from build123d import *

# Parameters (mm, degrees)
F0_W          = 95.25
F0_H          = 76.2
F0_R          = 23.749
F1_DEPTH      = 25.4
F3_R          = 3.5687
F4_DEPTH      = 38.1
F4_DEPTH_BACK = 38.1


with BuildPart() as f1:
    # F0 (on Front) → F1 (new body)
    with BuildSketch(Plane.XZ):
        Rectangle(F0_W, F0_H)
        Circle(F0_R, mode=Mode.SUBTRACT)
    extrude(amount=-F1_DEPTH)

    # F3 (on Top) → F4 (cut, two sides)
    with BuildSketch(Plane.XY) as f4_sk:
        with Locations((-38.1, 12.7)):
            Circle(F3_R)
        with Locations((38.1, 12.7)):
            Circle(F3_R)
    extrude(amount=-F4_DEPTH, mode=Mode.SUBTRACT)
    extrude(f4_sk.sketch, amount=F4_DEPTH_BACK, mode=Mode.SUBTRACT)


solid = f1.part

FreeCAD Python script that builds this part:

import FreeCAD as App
import Part
import Sketcher
Q = App.Units.Quantity

doc = App.newDocument("Part")
params = doc.addObject("Spreadsheet::Sheet", "Params")
for row, (alias, value) in enumerate([
    ("sketch1_diameter", "1.87 in"),
    ("sketch1_height", "3 in"),
    ("sketch1_width", "3.75 in"),
    ("pad1_length", "1 in"),
    ("sketch2_diameter", "0.281 in"),
], start=1):
    params.set(f"A{row}", alias)
    params.set(f"B{row}", "=" + value)
    params.setAlias(f"B{row}", alias)

body = doc.addObject("PartDesign::Body", "Body")

sketch1 = body.newObject("Sketcher::SketchObject", "Sketch")
sketch1.AttachmentSupport = (doc.getObject("XZ_Plane"), [""])
sketch1.MapMode = "FlatFace"
sketch1.addGeometry([
    Part.LineSegment(App.Vector(-48, 38, 0), App.Vector(-48, -38, 0)),
    Part.LineSegment(App.Vector(-48, -38, 0), App.Vector(48, -38, 0)),
    Part.LineSegment(App.Vector(48, -38, 0), App.Vector(48, 38, 0)),
    Part.LineSegment(App.Vector(48, 38, 0), App.Vector(-48, 38, 0)),
    Part.Circle(App.Vector(0, 0, 0), App.Vector(0, 0, 1), 24),
], False)
sketch1.addConstraint([
    Sketcher.Constraint("Coincident", 0, 2, 1, 1),
    Sketcher.Constraint("Coincident", 1, 2, 2, 1),
    Sketcher.Constraint("Coincident", 2, 2, 3, 1),
    Sketcher.Constraint("Coincident", 3, 2, 0, 1),
    Sketcher.Constraint("Vertical", 0),
    Sketcher.Constraint("Horizontal", 1),
    Sketcher.Constraint("Vertical", 2),
    Sketcher.Constraint("Horizontal", 3),
    Sketcher.Constraint("Coincident", 4, 3, -1, 1),
    Sketcher.Constraint("Symmetric", 0, 2, 2, 2, -1, 1),
    Sketcher.Constraint("Diameter", 4, Q("1.87 in")),
    Sketcher.Constraint("DistanceY", 0, 2, 0, 1, Q("3 in")),
    Sketcher.Constraint("DistanceX", 1, 1, 1, 2, Q("3.75 in")),
])
sketch1.setExpression("Constraints[10]", "Params.sketch1_diameter")
sketch1.setExpression("Constraints[11]", "Params.sketch1_height")
sketch1.setExpression("Constraints[12]", "Params.sketch1_width")
pad1 = body.newObject("PartDesign::Pad", "Pad")
pad1.Profile = sketch1
pad1.setExpression("Length", "Params.pad1_length")
pad1.Reversed = True

sketch2 = body.newObject("Sketcher::SketchObject", "Sketch001")
sketch2.AttachmentSupport = (doc.getObject("XY_Plane"), [""])
sketch2.MapMode = "FlatFace"
sketch2.addGeometry([
    Part.Circle(App.Vector(-38.1, 12.7, 0), App.Vector(0, 0, 1), 3.6),
    Part.Circle(App.Vector(38.1, 12.7, 0), App.Vector(0, 0, 1), 3.6),
], False)
sketch2.addConstraint([
    Sketcher.Constraint("Equal", 0, 1),
    Sketcher.Constraint("Symmetric", 0, 3, 1, 3, -2),
    Sketcher.Constraint("Diameter", 0, Q("0.281 in")),
    Sketcher.Constraint("DistanceX", 0, 3, 1, 3, Q("3 in")),
    Sketcher.Constraint("DistanceY", -1, 1, 0, 3, Q("0.5 in")),
])
sketch2.setExpression("Constraints[2]", "Params.sketch2_diameter")
pocket1 = body.newObject("PartDesign::Pocket", "Pocket")
pocket1.Profile = sketch2
pocket1.Type = "ThroughAll"
pocket1.Midplane = True

doc.recompute()
